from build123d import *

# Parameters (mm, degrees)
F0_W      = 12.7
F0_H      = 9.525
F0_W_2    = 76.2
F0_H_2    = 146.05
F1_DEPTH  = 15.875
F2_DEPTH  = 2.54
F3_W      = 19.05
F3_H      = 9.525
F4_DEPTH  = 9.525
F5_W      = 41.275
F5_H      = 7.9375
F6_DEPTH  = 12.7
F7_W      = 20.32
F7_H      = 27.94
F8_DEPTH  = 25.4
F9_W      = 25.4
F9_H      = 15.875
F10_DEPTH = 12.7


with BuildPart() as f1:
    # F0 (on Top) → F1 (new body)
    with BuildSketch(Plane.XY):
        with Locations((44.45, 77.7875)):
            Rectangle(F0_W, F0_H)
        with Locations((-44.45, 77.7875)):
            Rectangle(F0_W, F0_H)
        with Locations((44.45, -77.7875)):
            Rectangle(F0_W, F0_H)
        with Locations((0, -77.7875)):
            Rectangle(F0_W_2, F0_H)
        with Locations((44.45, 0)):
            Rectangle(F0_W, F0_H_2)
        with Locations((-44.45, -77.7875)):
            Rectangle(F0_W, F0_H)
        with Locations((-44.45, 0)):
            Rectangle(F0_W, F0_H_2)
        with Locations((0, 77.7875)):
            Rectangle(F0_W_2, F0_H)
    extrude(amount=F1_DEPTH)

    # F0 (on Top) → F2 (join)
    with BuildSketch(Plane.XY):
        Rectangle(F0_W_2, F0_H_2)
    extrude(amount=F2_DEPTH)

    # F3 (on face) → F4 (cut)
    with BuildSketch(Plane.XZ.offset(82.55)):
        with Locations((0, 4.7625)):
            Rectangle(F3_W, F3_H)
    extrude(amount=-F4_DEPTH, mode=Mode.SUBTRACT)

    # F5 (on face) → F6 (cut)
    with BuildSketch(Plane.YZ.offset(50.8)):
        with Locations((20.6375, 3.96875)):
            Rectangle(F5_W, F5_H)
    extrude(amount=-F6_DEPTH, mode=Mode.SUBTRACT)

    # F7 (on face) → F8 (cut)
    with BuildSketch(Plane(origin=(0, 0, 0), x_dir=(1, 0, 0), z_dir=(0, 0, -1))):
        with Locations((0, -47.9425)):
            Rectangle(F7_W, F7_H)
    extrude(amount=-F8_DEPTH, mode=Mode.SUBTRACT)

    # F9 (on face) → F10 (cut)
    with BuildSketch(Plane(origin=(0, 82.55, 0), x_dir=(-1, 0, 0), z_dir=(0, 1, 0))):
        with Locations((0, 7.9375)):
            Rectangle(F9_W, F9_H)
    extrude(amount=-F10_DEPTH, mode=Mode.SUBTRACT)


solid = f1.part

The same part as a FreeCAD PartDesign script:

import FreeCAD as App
import Part
import Sketcher
from FreeCAD import Vector
Q = App.Units.Quantity

doc = App.newDocument("Part")
params = doc.addObject("Spreadsheet::Sheet", "Params")
for row, (alias, value) in enumerate([
    ("sketch1_width", "4 in"),
    ("sketch1_width2", "3 in"),
    ("sketch1_height", "6.5 in"),
    ("sketch1_height2", "5.75 in"),
    ("pad1_length", "0.625 in"),
    ("sketch2_width", "3 in"),
    ("sketch2_height", "5.75 in"),
    ("pad2_length", "0.1 in"),
    ("sketch3_width", "0.75 in"),
    ("sketch3_height", "0.375 in"),
    ("pocket1_length", "0.375 in"),
    ("sketch4_width", "1.625 in"),
    ("sketch4_height", "0.3125 in"),
    ("pocket2_length", "0.5 in"),
    ("sketch5_width", "0.8 in"),
    ("sketch5_height", "1.1 in"),
    ("pocket3_length", "1 in"),
    ("sketch6_width", "1 in"),
    ("sketch6_height", "0.625 in"),
    ("pocket4_length", "0.5 in"),
], start=1):
    params.set(f"A{row}", alias)
    params.set(f"B{row}", "=" + value)
    params.setAlias(f"B{row}", alias)

body = doc.addObject("PartDesign::Body", "Body")

# Sketch on XY plane
sketch1 = body.newObject("Sketcher::SketchObject", "Sketch")
sketch1.AttachmentSupport = (doc.getObject("XY_Plane"), [""])
sketch1.MapMode = "FlatFace"
sketch1.addGeometry(Part.LineSegment(Vector(-51, 83, 0), Vector(-51, -83, 0)), False)
sketch1.addGeometry(Part.LineSegment(Vector(-51, -83, 0), Vector(51, -83, 0)), False)
sketch1.addGeometry(Part.LineSegment(Vector(51, -83, 0), Vector(51, 83, 0)), False)
sketch1.addGeometry(Part.LineSegment(Vector(51, 83, 0), Vector(-51, 83, 0)), False)
sketch1.addGeometry(Part.LineSegment(Vector(38, 73, 0), Vector(38, -73, 0)), False)
sketch1.addGeometry(Part.LineSegment(Vector(38, -73, 0), Vector(-38, -73, 0)), False)
sketch1.addGeometry(Part.LineSegment(Vector(-38, -73, 0), Vector(-38, 73, 0)), False)
sketch1.addGeometry(Part.LineSegment(Vector(-38, 73, 0), Vector(38, 73, 0)), False)
sketch1.addConstraint(Sketcher.Constraint("Coincident", 0, 2, 1, 1))
sketch1.addConstraint(Sketcher.Constraint("Coincident", 1, 2, 2, 1))
sketch1.addConstraint(Sketcher.Constraint("Coincident", 2, 2, 3, 1))
sketch1.addConstraint(Sketcher.Constraint("Coincident", 3, 2, 0, 1))
sketch1.addConstraint(Sketcher.Constraint("Coincident", 4, 2, 5, 1))
sketch1.addConstraint(Sketcher.Constraint("Coincident", 5, 2, 6, 1))
sketch1.addConstraint(Sketcher.Constraint("Coincident", 6, 2, 7, 1))
sketch1.addConstraint(Sketcher.Constraint("Coincident", 7, 2, 4, 1))
sketch1.addConstraint(Sketcher.Constraint("Vertical", 0))
sketch1.addConstraint(Sketcher.Constraint("Horizontal", 1))
sketch1.addConstraint(Sketcher.Constraint("Vertical", 2))
sketch1.addConstraint(Sketcher.Constraint("Horizontal", 3))
sketch1.addConstraint(Sketcher.Constraint("Vertical", 4))
sketch1.addConstraint(Sketcher.Constraint("Horizontal", 5))
sketch1.addConstraint(Sketcher.Constraint("Vertical", 6))
sketch1.addConstraint(Sketcher.Constraint("Horizontal", 7))
sketch1.addConstraint(Sketcher.Constraint("Symmetric", 0, 2, 2, 2, -1, 1))
sketch1.addConstraint(Sketcher.Constraint("Symmetric", 4, 2, 6, 2, -1, 1))
sketch1.addConstraint(Sketcher.Constraint("DistanceX", 1, 1, 1, 2, Q("4 in")))
sketch1.addConstraint(Sketcher.Constraint("DistanceX", 5, 2, 5, 1, Q("3 in")))
sketch1.addConstraint(Sketcher.Constraint("DistanceY", 0, 2, 0, 1, Q("6.5 in")))
sketch1.addConstraint(Sketcher.Constraint("DistanceY", 4, 2, 4, 1, Q("5.75 in")))
sketch1.setExpression("Constraints[18]", "Params.sketch1_width")
sketch1.setExpression("Constraints[19]", "Params.sketch1_width2")
sketch1.setExpression("Constraints[20]", "Params.sketch1_height")
sketch1.setExpression("Constraints[21]", "Params.sketch1_height2")
pad1 = body.newObject("PartDesign::Pad", "Pad")
pad1.Profile = sketch1
pad1.setExpression("Length", "Params.pad1_length")

# Sketch on XY plane
sketch2 = body.newObject("Sketcher::SketchObject", "Sketch001")
sketch2.AttachmentSupport = (doc.getObject("XY_Plane"), [""])
sketch2.MapMode = "FlatFace"
sketch2.addGeometry(Part.LineSegment(Vector(-38, 73, 0), Vector(-38, -73, 0)), False)
sketch2.addGeometry(Part.LineSegment(Vector(-38, -73, 0), Vector(38, -73, 0)), False)
sketch2.addGeometry(Part.LineSegment(Vector(38, -73, 0), Vector(38, 73, 0)), False)
sketch2.addGeometry(Part.LineSegment(Vector(38, 73, 0), Vector(-38, 73, 0)), False)
sketch2.addConstraint(Sketcher.Constraint("Coincident", 0, 2, 1, 1))
sketch2.addConstraint(Sketcher.Constraint("Coincident", 1, 2, 2, 1))
sketch2.addConstraint(Sketcher.Constraint("Coincident", 2, 2, 3, 1))
sketch2.addConstraint(Sketcher.Constraint("Coincident", 3, 2, 0, 1))
sketch2.addConstraint(Sketcher.Constraint("Vertical", 0))
sketch2.addConstraint(Sketcher.Constraint("Horizontal", 1))
sketch2.addConstraint(Sketcher.Constraint("Vertical", 2))
sketch2.addConstraint(Sketcher.Constraint("Horizontal", 3))
sketch2.addConstraint(Sketcher.Constraint("Symmetric", 0, 2, 2, 2, -1, 1))
sketch2.addConstraint(Sketcher.Constraint("DistanceX", 1, 1, 1, 2, Q("3 in")))
sketch2.addConstraint(Sketcher.Constraint("DistanceY", 0, 2, 0, 1, Q("5.75 in")))
sketch2.setExpression("Constraints[9]", "Params.sketch2_width")
sketch2.setExpression("Constraints[10]", "Params.sketch2_height")
pad2 = body.newObject("PartDesign::Pad", "Pad001")
pad2.Profile = sketch2
pad2.setExpression("Length", "Params.pad2_length")

# Sketch on XZ plane
sketch3 = body.newObject("Sketcher::SketchObject", "Sketch002")
sketch3.AttachmentSupport = (doc.getObject("XZ_Plane"), [""])
sketch3.MapMode = "FlatFace"
sketch3.AttachmentOffset = App.Placement(Vector(0, 0, 3.25 * 25.4), App.Rotation())
sketch3.addGeometry(Part.LineSegment(Vector(-10, 10, 0), Vector(-10, 0, 0)), False)
sketch3.addGeometry(Part.LineSegment(Vector(-10, 0, 0), Vector(10, 0, 0)), False)
sketch3.addGeometry(Part.LineSegment(Vector(10, 0, 0), Vector(10, 10, 0)), False)
sketch3.addGeometry(Part.LineSegment(Vector(10, 10, 0), Vector(-10, 10, 0)), False)
sketch3.addConstraint(Sketcher.Constraint("Coincident", 0, 2, 1, 1))
sketch3.addConstraint(Sketcher.Constraint("Coincident", 1, 2, 2, 1))
sketch3.addConstraint(Sketcher.Constraint("Coincident", 2, 2, 3, 1))
sketch3.addConstraint(Sketcher.Constraint("Coincident", 3, 2, 0, 1))
sketch3.addConstraint(Sketcher.Constraint("Vertical", 0))
sketch3.addConstraint(Sketcher.Constraint("Horizontal", 1))
sketch3.addConstraint(Sketcher.Constraint("Vertical", 2))
sketch3.addConstraint(Sketcher.Constraint("Horizontal", 3))
sketch3.addConstraint(Sketcher.Constraint("Symmetric", 0, 2, 1, 2, -1, 1))
sketch3.addConstraint(Sketcher.Constraint("DistanceX", 1, 1, 1, 2, Q("0.75 in")))
sketch3.addConstraint(Sketcher.Constraint("DistanceY", 0, 2, 0, 1, Q("0.375 in")))
sketch3.setExpression("Constraints[9]", "Params.sketch3_width")
sketch3.setExpression("Constraints[10]", "Params.sketch3_height")
pocket1 = body.newObject("PartDesign::Pocket", "Pocket")
pocket1.Profile = sketch3
pocket1.setExpression("Length", "Params.pocket1_length")

# Sketch on YZ plane
sketch4 = body.newObject("Sketcher::SketchObject", "Sketch003")
sketch4.AttachmentSupport = (doc.getObject("YZ_Plane"), [""])
sketch4.MapMode = "FlatFace"
sketch4.AttachmentOffset = App.Placement(Vector(0, 0, 2 * 25.4), App.Rotation())
sketch4.addGeometry(Part.LineSegment(Vector(0, 8, 0), Vector(0, 0, 0)), False)
sketch4.addGeometry(Part.LineSegment(Vector(0, 0, 0), Vector(41, 0, 0)), False)
sketch4.addGeometry(Part.LineSegment(Vector(41, 0, 0), Vector(41, 8, 0)), False)
sketch4.addGeometry(Part.LineSegment(Vector(41, 8, 0), Vector(0, 8, 0)), False)
sketch4.addConstraint(Sketcher.Constraint("Coincident", 0, 2, 1, 1))
sketch4.addConstraint(Sketcher.Constraint("Coincident", 1, 2, 2, 1))
sketch4.addConstraint(Sketcher.Constraint("Coincident", 2, 2, 3, 1))
sketch4.addConstraint(Sketcher.Constraint("Coincident", 3, 2, 0, 1))
sketch4.addConstraint(Sketcher.Constraint("Vertical", 0))
sketch4.addConstraint(Sketcher.Constraint("Horizontal", 1))
sketch4.addConstraint(Sketcher.Constraint("Vertical", 2))
sketch4.addConstraint(Sketcher.Constraint("Horizontal", 3))
sketch4.addConstraint(Sketcher.Constraint("Coincident", 0, 2, -1, 1))
sketch4.addConstraint(Sketcher.Constraint("DistanceX", 1, 1, 1, 2, Q("1.625 in")))
sketch4.addConstraint(Sketcher.Constraint("DistanceY", 0, 2, 0, 1, Q("0.3125 in")))
sketch4.setExpression("Constraints[9]", "Params.sketch4_width")
sketch4.setExpression("Constraints[10]", "Params.sketch4_height")
pocket2 = body.newObject("PartDesign::Pocket", "Pocket001")
pocket2.Profile = sketch4
pocket2.setExpression("Length", "Params.pocket2_length")

# Sketch on XY plane
sketch5 = body.newObject("Sketcher::SketchObject", "Sketch004")
sketch5.AttachmentSupport = (doc.getObject("XY_Plane"), [""])
sketch5.MapMode = "FlatFace"
sketch5.addGeometry(Part.LineSegment(Vector(-10, 34, 0), Vector(-10, 62, 0)), False)
sketch5.addGeometry(Part.LineSegment(Vector(-10, 62, 0), Vector(10, 62, 0)), False)
sketch5.addGeometry(Part.LineSegment(Vector(10, 62, 0), Vector(10, 34, 0)), False)
sketch5.addGeometry(Part.LineSegment(Vector(10, 34, 0), Vector(-10, 34, 0)), False)
sketch5.addConstraint(Sketcher.Constraint("Coincident", 0, 2, 1, 1))
sketch5.addConstraint(Sketcher.Constraint("Coincident", 1, 2, 2, 1))
sketch5.addConstraint(Sketcher.Constraint("Coincident", 2, 2, 3, 1))
sketch5.addConstraint(Sketcher.Constraint("Coincident", 3, 2, 0, 1))
sketch5.addConstraint(Sketcher.Constraint("Vertical", 0))
sketch5.addConstraint(Sketcher.Constraint("Horizontal", 1))
sketch5.addConstraint(Sketcher.Constraint("Vertical", 2))
sketch5.addConstraint(Sketcher.Constraint("Horizontal", 3))
sketch5.addConstraint(Sketcher.Constraint("DistanceX", 1, 1, 1, 2, Q("0.8 in")))
sketch5.addConstraint(Sketcher.Constraint("DistanceY", 0, 1, 0, 2, Q("1.1 in")))
sketch5.addConstraint(Sketcher.Constraint("DistanceX", 0, 2, -1, 1, Q("0.4 in")))
sketch5.addConstraint(Sketcher.Constraint("DistanceY", -1, 1, 0, 2, Q("2.4375 in")))
sketch5.setExpression("Constraints[8]", "Params.sketch5_width")
sketch5.setExpression("Constraints[9]", "Params.sketch5_height")
pocket3 = body.newObject("PartDesign::Pocket", "Pocket002")
pocket3.Profile = sketch5
pocket3.setExpression("Length", "Params.pocket3_length")
pocket3.Reversed = True

# Sketch on XZ plane
sketch6 = body.newObject("Sketcher::SketchObject", "Sketch005")
sketch6.AttachmentSupport = (doc.getObject("XZ_Plane"), [""])
sketch6.MapMode = "FlatFace"
sketch6.AttachmentOffset = App.Placement(Vector(0, 0, -3.25 * 25.4), App.Rotation())
sketch6.addGeometry(Part.LineSegment(Vector(13, 16, 0), Vector(13, 0, 0)), False)
sketch6.addGeometry(Part.LineSegment(Vector(13, 0, 0), Vector(-13, 0, 0)), False)
sketch6.addGeometry(Part.LineSegment(Vector(-13, 0, 0), Vector(-13, 16, 0)), False)
sketch6.addGeometry(Part.LineSegment(Vector(-13, 16, 0), Vector(13, 16, 0)), False)
sketch6.addConstraint(Sketcher.Constraint("Coincident", 0, 2, 1, 1))
sketch6.addConstraint(Sketcher.Constraint("Coincident", 1, 2, 2, 1))
sketch6.addConstraint(Sketcher.Constraint("Coincident", 2, 2, 3, 1))
sketch6.addConstraint(Sketcher.Constraint("Coincident", 3, 2, 0, 1))
sketch6.addConstraint(Sketcher.Constraint("Vertical", 0))
sketch6.addConstraint(Sketcher.Constraint("Horizontal", 1))
sketch6.addConstraint(Sketcher.Constraint("Vertical", 2))
sketch6.addConstraint(Sketcher.Constraint("Horizontal", 3))
sketch6.addConstraint(Sketcher.Constraint("Symmetric", 0, 2, 1, 2, -1, 1))
sketch6.addConstraint(Sketcher.Constraint("DistanceX", 1, 2, 1, 1, Q("1 in")))
sketch6.addConstraint(Sketcher.Constraint("DistanceY", 0, 2, 0, 1, Q("0.625 in")))
sketch6.setExpression("Constraints[9]", "Params.sketch6_width")
sketch6.setExpression("Constraints[10]", "Params.sketch6_height")
pocket4 = body.newObject("PartDesign::Pocket", "Pocket003")
pocket4.Profile = sketch6
pocket4.setExpression("Length", "Params.pocket4_length")
pocket4.Reversed = True

doc.recompute()
